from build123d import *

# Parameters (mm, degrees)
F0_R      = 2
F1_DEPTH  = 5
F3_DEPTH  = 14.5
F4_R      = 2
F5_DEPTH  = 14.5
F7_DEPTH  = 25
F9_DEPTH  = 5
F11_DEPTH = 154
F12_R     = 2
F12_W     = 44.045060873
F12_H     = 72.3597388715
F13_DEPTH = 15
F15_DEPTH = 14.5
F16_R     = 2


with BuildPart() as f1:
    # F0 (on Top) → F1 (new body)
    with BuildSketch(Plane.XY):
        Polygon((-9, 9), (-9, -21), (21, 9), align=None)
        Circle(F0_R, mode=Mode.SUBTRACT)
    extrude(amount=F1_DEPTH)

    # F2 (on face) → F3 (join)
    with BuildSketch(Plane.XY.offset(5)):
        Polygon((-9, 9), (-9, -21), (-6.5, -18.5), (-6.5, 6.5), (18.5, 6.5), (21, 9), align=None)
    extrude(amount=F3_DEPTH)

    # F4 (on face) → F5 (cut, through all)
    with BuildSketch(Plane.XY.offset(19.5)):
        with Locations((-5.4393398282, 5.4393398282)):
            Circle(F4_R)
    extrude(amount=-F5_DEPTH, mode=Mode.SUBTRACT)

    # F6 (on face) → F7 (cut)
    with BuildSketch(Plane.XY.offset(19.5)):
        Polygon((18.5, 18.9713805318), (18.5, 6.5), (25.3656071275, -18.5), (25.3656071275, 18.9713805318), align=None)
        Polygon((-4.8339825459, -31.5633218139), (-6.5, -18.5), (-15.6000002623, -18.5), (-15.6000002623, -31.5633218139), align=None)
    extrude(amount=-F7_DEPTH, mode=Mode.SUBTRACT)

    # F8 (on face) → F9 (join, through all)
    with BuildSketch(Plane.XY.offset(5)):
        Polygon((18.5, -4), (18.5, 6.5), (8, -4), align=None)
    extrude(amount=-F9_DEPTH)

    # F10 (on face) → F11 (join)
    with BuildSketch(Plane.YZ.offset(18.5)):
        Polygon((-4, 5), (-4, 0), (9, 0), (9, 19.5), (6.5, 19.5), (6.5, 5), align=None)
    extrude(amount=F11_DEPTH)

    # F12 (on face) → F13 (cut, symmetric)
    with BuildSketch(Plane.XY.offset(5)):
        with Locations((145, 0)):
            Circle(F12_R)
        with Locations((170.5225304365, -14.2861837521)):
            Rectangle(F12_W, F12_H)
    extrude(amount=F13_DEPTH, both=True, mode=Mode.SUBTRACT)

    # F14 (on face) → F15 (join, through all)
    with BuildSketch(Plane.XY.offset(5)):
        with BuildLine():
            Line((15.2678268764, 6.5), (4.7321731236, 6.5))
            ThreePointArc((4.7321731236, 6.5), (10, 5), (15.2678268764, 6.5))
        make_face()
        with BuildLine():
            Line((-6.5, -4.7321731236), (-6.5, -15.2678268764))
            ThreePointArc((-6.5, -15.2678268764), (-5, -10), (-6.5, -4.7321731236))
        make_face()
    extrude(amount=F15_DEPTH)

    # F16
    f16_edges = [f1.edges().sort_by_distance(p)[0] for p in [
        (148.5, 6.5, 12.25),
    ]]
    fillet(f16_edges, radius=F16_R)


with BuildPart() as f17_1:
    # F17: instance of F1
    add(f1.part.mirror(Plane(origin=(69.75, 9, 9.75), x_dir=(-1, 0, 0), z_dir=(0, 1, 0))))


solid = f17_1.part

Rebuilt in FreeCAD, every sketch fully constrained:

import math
import FreeCAD as App
import Part
import Sketcher


def edges_at(feature, points):
    """Names of the edges that pass closest to the given points."""
    edges = feature.Shape.Edges
    near = lambda p: min(range(len(edges)), key=lambda i: edges[i].distToShape(Part.Vertex(*p))[0])
    return sorted({f"Edge{near(p) + 1}" for p in points})


def add_polygon(sketch, points):
    """Adds a closed chain of lines whose ends are joined by coincident constraints."""
    first, n = sketch.GeometryCount, len(points)
    for a, b in zip(points, points[1:] + points[:1]):
        sketch.addGeometry(Part.LineSegment(App.Vector(*a, 0), App.Vector(*b, 0)), False)
    for i in range(n):
        sketch.addConstraint(Sketcher.Constraint("Coincident", first + i, 2, first + (i + 1) % n, 1))

doc = App.newDocument("Part")
params = doc.addObject("Spreadsheet::Sheet", "Params")
for row, (alias, value) in enumerate([
    ("sketch1_diameter", "4 mm"),
    ("sketch1_width", "30 mm"),
    ("pad1_length", "5 mm"),
    ("sketch2_width", "25 mm"),
    ("sketch2_width2", "30 mm"),
    ("pad2_length", "14.5 mm"),
    ("sketch3_diameter", "4 mm"),
    ("pocket1_length", "14.5 mm"),
    ("sketch4_width", "9.1 mm"),
    ("pocket2_length", "25 mm"),
    ("sketch5_width", "10.5 mm"),
    ("pad3_length", "5 mm"),
    ("sketch6_width", "13 mm"),
    ("sketch6_height", "5 mm"),
    ("sketch6_width2", "2.5 mm"),
    ("sketch6_height2", "19.5 mm"),
    ("pad4_length", "154 mm"),
    ("sketch7_diameter", "4 mm"),
    ("pocket3_length", "30 mm"),
    ("sketch8_radius", "10 mm"),
    ("pad5_length", "14.5 mm"),
    ("fillet_radius", "2 mm"),
], start=1):
    params.set(f"A{row}", alias)
    params.set(f"B{row}", "=" + value)
    params.setAlias(f"B{row}", alias)

body = doc.addObject("PartDesign::Body", "Body")

sketch1 = body.newObject("Sketcher::SketchObject", "Sketch")
sketch1.AttachmentSupport = (doc.getObject("XY_Plane"), [""])
sketch1.MapMode = "FlatFace"
add_polygon(sketch1, [(-9, 9), (-9, -21), (21, 9)])
sketch1.addGeometry(Part.Circle(App.Vector(0, 0, 0), App.Vector(0, 0, 1), 2), False)
sketch1.addConstraint([
    Sketcher.Constraint("Vertical", 0),
    Sketcher.Constraint("Horizontal", 2),
    Sketcher.Constraint("Coincident", 3, 3, -1, 1),
    Sketcher.Constraint("Equal", 2, 0),
    Sketcher.Constraint("Diameter", 3, 4.0),
    Sketcher.Constraint("DistanceX", 2, 2, 2, 1, 30.0),
    Sketcher.Constraint("DistanceX", 0, 2, -1, 1, 9.0),
    Sketcher.Constraint("DistanceY", 0, 2, -1, 1, 21.0),
])
sketch1.setExpression("Constraints[7]", "Params.sketch1_diameter")
sketch1.setExpression("Constraints[8]", "Params.sketch1_width")
pad1 = body.newObject("PartDesign::Pad", "Pad")
pad1.Profile = sketch1
pad1.setExpression("Length", "Params.pad1_length")

sketch2 = body.newObject("Sketcher::SketchObject", "Sketch001")
sketch2.AttachmentSupport = (doc.getObject("XY_Plane"), [""])
sketch2.MapMode = "FlatFace"
sketch2.AttachmentOffset = App.Placement(App.Vector(0, 0, 5), App.Rotation())
add_polygon(sketch2, [(-9, 9), (-9, -21), (-6.5, -18.5), (-6.5, 6.5), (18.5, 6.5), (21, 9)])
sketch2.addConstraint([
    Sketcher.Constraint("Vertical", 0),
    Sketcher.Constraint("Vertical", 2),
    Sketcher.Constraint("Horizontal", 3),
    Sketcher.Constraint("Horizontal", 5),
    Sketcher.Constraint("Parallel", 1, 4),
    Sketcher.Constraint("Equal", 5, 0),
    Sketcher.Constraint("Equal", 3, 2),
    Sketcher.Constraint("Equal", 1, 4),
    Sketcher.Constraint("DistanceX", 3, 1, 3, 2, 25.0),
    Sketcher.Constraint("DistanceX", 5, 2, 5, 1, 30.0),
    Sketcher.Constraint("DistanceX", 0, 2, -1, 1, 9.0),
    Sketcher.Constraint("DistanceY", 0, 2, -1, 1, 21.0),
])
sketch2.setExpression("Constraints[14]", "Params.sketch2_width")
sketch2.setExpression("Constraints[15]", "Params.sketch2_width2")
pad2 = body.newObject("PartDesign::Pad", "Pad001")
pad2.Profile = sketch2
pad2.setExpression("Length", "Params.pad2_length")

sketch3 = body.newObject("Sketcher::SketchObject", "Sketch002")
sketch3.AttachmentSupport = (doc.getObject("XY_Plane"), [""])
sketch3.MapMode = "FlatFace"
sketch3.AttachmentOffset = App.Placement(App.Vector(0, 0, 19.5), App.Rotation())
sketch3.addGeometry(Part.Circle(App.Vector(-5.43934, 5.43934, 0), App.Vector(0, 0, 1), 2), False)
sketch3.addConstraint([
    Sketcher.Constraint("Diameter", 0, 4.0),
    Sketcher.Constraint("DistanceX", 0, 3, -1, 1, 5.43934),
    Sketcher.Constraint("DistanceY", -1, 1, 0, 3, 5.43934),
])
sketch3.setExpression("Constraints[0]", "Params.sketch3_diameter")
pocket1 = body.newObject("PartDesign::Pocket", "Pocket")
pocket1.Profile = sketch3
pocket1.setExpression("Length", "Params.pocket1_length")

sketch4 = body.newObject("Sketcher::SketchObject", "Sketch003")
sketch4.AttachmentSupport = (doc.getObject("XY_Plane"), [""])
sketch4.MapMode = "FlatFace"
sketch4.AttachmentOffset = App.Placement(App.Vector(0, 0, 19.5), App.Rotation())
add_polygon(sketch4, [(18.5, 18.971381), (18.5, 6.5), (25.365607, -18.5), (25.365607, 18.971381)])
add_polygon(sketch4, [(-4.833983, -31.563322), (-6.5, -18.5), (-15.6, -18.5), (-15.6, -31.563322)])
sketch4.addConstraint([
    Sketcher.Constraint("Vertical", 0),
    Sketcher.Constraint("Vertical", 2),
    Sketcher.Constraint("Horizontal", 3),
    Sketcher.Constraint("Horizontal", 5),
    Sketcher.Constraint("Vertical", 6),
    Sketcher.Constraint("Horizontal", 7),
    Sketcher.Constraint("Horizontal", 1, 2, 4, 2),
    Sketcher.Constraint("DistanceX", 5, 2, 5, 1, 9.1),
    Sketcher.Constraint("DistanceY", 1, 2, 0, 2, 25.0),
    Sketcher.Constraint("DistanceX", 4, 2, 0, 2, 25.0),
    Sketcher.Constraint("DistanceX", -1, 1, 0, 2, 18.5),
    Sketcher.Constraint("DistanceY", -1, 1, 0, 2, 6.5),
    Sketcher.Constraint("DistanceY", 0, 2, 0, 1, 12.471381),
    Sketcher.Constraint("DistanceY", 6, 2, 6, 1, 13.063322),
    Sketcher.Constraint("Distance", 4, 13.16913),
    Sketcher.Constraint("DistanceX", 3, 2, 3, 1, 6.865607),
])
sketch4.setExpression("Constraints[15]", "Params.sketch4_width")
pocket2 = body.newObject("PartDesign::Pocket", "Pocket001")
pocket2.Profile = sketch4
pocket2.setExpression("Length", "Params.pocket2_length")

sketch5 = body.newObject("Sketcher::SketchObject", "Sketch004")
sketch5.AttachmentSupport = (doc.getObject("XY_Plane"), [""])
sketch5.MapMode = "FlatFace"
sketch5.AttachmentOffset = App.Placement(App.Vector(0, 0, 5), App.Rotation())
add_polygon(sketch5, [(18.5, -4), (18.5, 6.5), (8, -4)])
sketch5.addConstraint([
    Sketcher.Constraint("Vertical", 0),
    Sketcher.Constraint("Horizontal", 2),
    Sketcher.Constraint("Equal", 2, 0),
    Sketcher.Constraint("DistanceX", 2, 1, 2, 2, 10.5),
    Sketcher.Constraint("DistanceX", -1, 1, 1, 2, 8.0),
    Sketcher.Constraint("DistanceY", 1, 2, -1, 1, 4.0),
])
sketch5.setExpression("Constraints[6]", "Params.sketch5_width")
pad3 = body.newObject("PartDesign::Pad", "Pad002")
pad3.Profile = sketch5
pad3.setExpression("Length", "Params.pad3_length")
pad3.Reversed = True

sketch6 = body.newObject("Sketcher::SketchObject", "Sketch005")
sketch6.AttachmentSupport = (doc.getObject("YZ_Plane"), [""])
sketch6.MapMode = "FlatFace"
sketch6.AttachmentOffset = App.Placement(App.Vector(0, 0, 18.5), App.Rotation())
add_polygon(sketch6, [(-4, 5), (-4, 0), (9, 0), (9, 19.5), (6.5, 19.5), (6.5, 5)])
sketch6.addConstraint([
    Sketcher.Constraint("Vertical", 0),
    Sketcher.Constraint("Horizontal", 1),
    Sketcher.Constraint("Vertical", 2),
    Sketcher.Constraint("Horizontal", 3),
    Sketcher.Constraint("Vertical", 4),
    Sketcher.Constraint("Horizontal", 5),
    Sketcher.Constraint("PointOnObject", 0, 2, -1),
    Sketcher.Constraint("DistanceX", 1, 1, 1, 2, 13.0),
    Sketcher.Constraint("DistanceY", 0, 2, 0, 1, 5.0),
    Sketcher.Constraint("DistanceX", 3, 2, 3, 1, 2.5),
    Sketcher.Constraint("DistanceY", 2, 1, 2, 2, 19.5),
    Sketcher.Constraint("DistanceX", 0, 2, -1, 1, 4.0),
])
sketch6.setExpression("Constraints[13]", "Params.sketch6_width")
sketch6.setExpression("Constraints[14]", "Params.sketch6_height")
sketch6.setExpression("Constraints[15]", "Params.sketch6_width2")
sketch6.setExpression("Constraints[16]", "Params.sketch6_height2")
pad4 = body.newObject("PartDesign::Pad", "Pad003")
pad4.Profile = sketch6
pad4.setExpression("Length", "Params.pad4_length")

sketch7 = body.newObject("Sketcher::SketchObject", "Sketch006")
sketch7.AttachmentSupport = (doc.getObject("XY_Plane"), [""])
sketch7.MapMode = "FlatFace"
sketch7.AttachmentOffset = App.Placement(App.Vector(0, 0, 5), App.Rotation())
sketch7.addGeometry(Part.Circle(App.Vector(145, 0, 0), App.Vector(0, 0, 1), 2), False)
add_polygon(sketch7, [(148.5, 21.893686), (148.5, -50.466053), (192.545061, -50.466053), (192.545061, 21.893686)])
sketch7.addConstraint([
    Sketcher.Constraint("Vertical", 1),
    Sketcher.Constraint("Horizontal", 2),
    Sketcher.Constraint("Vertical", 3),
    Sketcher.Constraint("Horizontal", 4),
    Sketcher.Constraint("PointOnObject", 0, 3, -1),
    Sketcher.Constraint("Diameter", 0, 4.0),
    Sketcher.Constraint("DistanceX", -1, 1, 0, 3, 145.0),
    Sketcher.Constraint("DistanceX", -1, 1, 1, 2, 148.5),
    Sketcher.Constraint("DistanceX", 2, 1, 2, 2, 44.045061),
    Sketcher.Constraint("DistanceY", 1, 2, 1, 1, 72.359739),
    Sketcher.Constraint("DistanceY", 1, 2, -1, 1, 50.466053),
])
sketch7.setExpression("Constraints[9]", "Params.sketch7_diameter")
pocket3 = body.newObject("PartDesign::Pocket", "Pocket002")
pocket3.Profile = sketch7
pocket3.setExpression("Length", "Params.pocket3_length")
pocket3.Midplane = True

sketch8 = body.newObject("Sketcher::SketchObject", "Sketch007")
sketch8.AttachmentSupport = (doc.getObject("XY_Plane"), [""])
sketch8.MapMode = "FlatFace"
sketch8.AttachmentOffset = App.Placement(App.Vector(0, 0, 5), App.Rotation())
sketch8.addGeometry([
    Part.LineSegment(App.Vector(15.267827, 6.5, 0), App.Vector(4.732173, 6.5, 0)),
    Part.ArcOfCircle(Part.Circle(App.Vector(10, 15, 0), App.Vector(0, 0, 1), 10), math.radians(-121.788331), math.radians(-58.211669)),
    Part.LineSegment(App.Vector(-6.5, -4.732173, 0), App.Vector(-6.5, -15.267827, 0)),
    Part.ArcOfCircle(Part.Circle(App.Vector(-15, -10, 0), App.Vector(0, 0, 1), 10), math.radians(-31.788331), math.radians(31.788331)),
], False)
sketch8.addConstraint([
    Sketcher.Constraint("Coincident", 0, 1, 1, 2),
    Sketcher.Constraint("Coincident", 1, 1, 0, 2),
    Sketcher.Constraint("Coincident", 2, 1, 3, 2),
    Sketcher.Constraint("Coincident", 3, 1, 2, 2),
    Sketcher.Constraint("Horizontal", 0),
    Sketcher.Constraint("Vertical", 2),
    Sketcher.Constraint("Equal", 1, 3),
    Sketcher.Constraint("Equal", 0, 2),
    Sketcher.Constraint("Radius", 1, 10.0),
    Sketcher.Constraint("DistanceX", -1, 1, 1, 3, 10.0),
    Sketcher.Constraint("DistanceY", -1, 1, 1, 3, 15.0),
    Sketcher.Constraint("DistanceX", 3, 3, -1, 1, 15.0),
    Sketcher.Constraint("DistanceY", 3, 3, -1, 1, 10.0),
    Sketcher.Constraint("DistanceY", -1, 1, 0, 1, 6.5),
])
sketch8.setExpression("Constraints[8]", "Params.sketch8_radius")
pad5 = body.newObject("PartDesign::Pad", "Pad004")
pad5.Profile = sketch8
pad5.setExpression("Length", "Params.pad5_length")
doc.recompute()

fillet = body.newObject("PartDesign::Fillet", "Fillet")
fillet.Base = (pad5, edges_at(pad5, [(148.5, 6.5, 12.25)]))
fillet.setExpression("Radius", "Params.fillet_radius")
body2 = doc.addObject("PartDesign::Body", "Body001")
doc.recompute()

mirroring = doc.addObject("Part::Mirroring", "Mirroring")
mirroring.Source = body
mirroring.Base = App.Vector(69.75, 9, 9.75)
mirroring.Normal = App.Vector(0, 1, 0)
body2.BaseFeature = mirroring
doc.recompute()
body.Visibility = False
mirroring.Visibility = False

doc.recompute()
